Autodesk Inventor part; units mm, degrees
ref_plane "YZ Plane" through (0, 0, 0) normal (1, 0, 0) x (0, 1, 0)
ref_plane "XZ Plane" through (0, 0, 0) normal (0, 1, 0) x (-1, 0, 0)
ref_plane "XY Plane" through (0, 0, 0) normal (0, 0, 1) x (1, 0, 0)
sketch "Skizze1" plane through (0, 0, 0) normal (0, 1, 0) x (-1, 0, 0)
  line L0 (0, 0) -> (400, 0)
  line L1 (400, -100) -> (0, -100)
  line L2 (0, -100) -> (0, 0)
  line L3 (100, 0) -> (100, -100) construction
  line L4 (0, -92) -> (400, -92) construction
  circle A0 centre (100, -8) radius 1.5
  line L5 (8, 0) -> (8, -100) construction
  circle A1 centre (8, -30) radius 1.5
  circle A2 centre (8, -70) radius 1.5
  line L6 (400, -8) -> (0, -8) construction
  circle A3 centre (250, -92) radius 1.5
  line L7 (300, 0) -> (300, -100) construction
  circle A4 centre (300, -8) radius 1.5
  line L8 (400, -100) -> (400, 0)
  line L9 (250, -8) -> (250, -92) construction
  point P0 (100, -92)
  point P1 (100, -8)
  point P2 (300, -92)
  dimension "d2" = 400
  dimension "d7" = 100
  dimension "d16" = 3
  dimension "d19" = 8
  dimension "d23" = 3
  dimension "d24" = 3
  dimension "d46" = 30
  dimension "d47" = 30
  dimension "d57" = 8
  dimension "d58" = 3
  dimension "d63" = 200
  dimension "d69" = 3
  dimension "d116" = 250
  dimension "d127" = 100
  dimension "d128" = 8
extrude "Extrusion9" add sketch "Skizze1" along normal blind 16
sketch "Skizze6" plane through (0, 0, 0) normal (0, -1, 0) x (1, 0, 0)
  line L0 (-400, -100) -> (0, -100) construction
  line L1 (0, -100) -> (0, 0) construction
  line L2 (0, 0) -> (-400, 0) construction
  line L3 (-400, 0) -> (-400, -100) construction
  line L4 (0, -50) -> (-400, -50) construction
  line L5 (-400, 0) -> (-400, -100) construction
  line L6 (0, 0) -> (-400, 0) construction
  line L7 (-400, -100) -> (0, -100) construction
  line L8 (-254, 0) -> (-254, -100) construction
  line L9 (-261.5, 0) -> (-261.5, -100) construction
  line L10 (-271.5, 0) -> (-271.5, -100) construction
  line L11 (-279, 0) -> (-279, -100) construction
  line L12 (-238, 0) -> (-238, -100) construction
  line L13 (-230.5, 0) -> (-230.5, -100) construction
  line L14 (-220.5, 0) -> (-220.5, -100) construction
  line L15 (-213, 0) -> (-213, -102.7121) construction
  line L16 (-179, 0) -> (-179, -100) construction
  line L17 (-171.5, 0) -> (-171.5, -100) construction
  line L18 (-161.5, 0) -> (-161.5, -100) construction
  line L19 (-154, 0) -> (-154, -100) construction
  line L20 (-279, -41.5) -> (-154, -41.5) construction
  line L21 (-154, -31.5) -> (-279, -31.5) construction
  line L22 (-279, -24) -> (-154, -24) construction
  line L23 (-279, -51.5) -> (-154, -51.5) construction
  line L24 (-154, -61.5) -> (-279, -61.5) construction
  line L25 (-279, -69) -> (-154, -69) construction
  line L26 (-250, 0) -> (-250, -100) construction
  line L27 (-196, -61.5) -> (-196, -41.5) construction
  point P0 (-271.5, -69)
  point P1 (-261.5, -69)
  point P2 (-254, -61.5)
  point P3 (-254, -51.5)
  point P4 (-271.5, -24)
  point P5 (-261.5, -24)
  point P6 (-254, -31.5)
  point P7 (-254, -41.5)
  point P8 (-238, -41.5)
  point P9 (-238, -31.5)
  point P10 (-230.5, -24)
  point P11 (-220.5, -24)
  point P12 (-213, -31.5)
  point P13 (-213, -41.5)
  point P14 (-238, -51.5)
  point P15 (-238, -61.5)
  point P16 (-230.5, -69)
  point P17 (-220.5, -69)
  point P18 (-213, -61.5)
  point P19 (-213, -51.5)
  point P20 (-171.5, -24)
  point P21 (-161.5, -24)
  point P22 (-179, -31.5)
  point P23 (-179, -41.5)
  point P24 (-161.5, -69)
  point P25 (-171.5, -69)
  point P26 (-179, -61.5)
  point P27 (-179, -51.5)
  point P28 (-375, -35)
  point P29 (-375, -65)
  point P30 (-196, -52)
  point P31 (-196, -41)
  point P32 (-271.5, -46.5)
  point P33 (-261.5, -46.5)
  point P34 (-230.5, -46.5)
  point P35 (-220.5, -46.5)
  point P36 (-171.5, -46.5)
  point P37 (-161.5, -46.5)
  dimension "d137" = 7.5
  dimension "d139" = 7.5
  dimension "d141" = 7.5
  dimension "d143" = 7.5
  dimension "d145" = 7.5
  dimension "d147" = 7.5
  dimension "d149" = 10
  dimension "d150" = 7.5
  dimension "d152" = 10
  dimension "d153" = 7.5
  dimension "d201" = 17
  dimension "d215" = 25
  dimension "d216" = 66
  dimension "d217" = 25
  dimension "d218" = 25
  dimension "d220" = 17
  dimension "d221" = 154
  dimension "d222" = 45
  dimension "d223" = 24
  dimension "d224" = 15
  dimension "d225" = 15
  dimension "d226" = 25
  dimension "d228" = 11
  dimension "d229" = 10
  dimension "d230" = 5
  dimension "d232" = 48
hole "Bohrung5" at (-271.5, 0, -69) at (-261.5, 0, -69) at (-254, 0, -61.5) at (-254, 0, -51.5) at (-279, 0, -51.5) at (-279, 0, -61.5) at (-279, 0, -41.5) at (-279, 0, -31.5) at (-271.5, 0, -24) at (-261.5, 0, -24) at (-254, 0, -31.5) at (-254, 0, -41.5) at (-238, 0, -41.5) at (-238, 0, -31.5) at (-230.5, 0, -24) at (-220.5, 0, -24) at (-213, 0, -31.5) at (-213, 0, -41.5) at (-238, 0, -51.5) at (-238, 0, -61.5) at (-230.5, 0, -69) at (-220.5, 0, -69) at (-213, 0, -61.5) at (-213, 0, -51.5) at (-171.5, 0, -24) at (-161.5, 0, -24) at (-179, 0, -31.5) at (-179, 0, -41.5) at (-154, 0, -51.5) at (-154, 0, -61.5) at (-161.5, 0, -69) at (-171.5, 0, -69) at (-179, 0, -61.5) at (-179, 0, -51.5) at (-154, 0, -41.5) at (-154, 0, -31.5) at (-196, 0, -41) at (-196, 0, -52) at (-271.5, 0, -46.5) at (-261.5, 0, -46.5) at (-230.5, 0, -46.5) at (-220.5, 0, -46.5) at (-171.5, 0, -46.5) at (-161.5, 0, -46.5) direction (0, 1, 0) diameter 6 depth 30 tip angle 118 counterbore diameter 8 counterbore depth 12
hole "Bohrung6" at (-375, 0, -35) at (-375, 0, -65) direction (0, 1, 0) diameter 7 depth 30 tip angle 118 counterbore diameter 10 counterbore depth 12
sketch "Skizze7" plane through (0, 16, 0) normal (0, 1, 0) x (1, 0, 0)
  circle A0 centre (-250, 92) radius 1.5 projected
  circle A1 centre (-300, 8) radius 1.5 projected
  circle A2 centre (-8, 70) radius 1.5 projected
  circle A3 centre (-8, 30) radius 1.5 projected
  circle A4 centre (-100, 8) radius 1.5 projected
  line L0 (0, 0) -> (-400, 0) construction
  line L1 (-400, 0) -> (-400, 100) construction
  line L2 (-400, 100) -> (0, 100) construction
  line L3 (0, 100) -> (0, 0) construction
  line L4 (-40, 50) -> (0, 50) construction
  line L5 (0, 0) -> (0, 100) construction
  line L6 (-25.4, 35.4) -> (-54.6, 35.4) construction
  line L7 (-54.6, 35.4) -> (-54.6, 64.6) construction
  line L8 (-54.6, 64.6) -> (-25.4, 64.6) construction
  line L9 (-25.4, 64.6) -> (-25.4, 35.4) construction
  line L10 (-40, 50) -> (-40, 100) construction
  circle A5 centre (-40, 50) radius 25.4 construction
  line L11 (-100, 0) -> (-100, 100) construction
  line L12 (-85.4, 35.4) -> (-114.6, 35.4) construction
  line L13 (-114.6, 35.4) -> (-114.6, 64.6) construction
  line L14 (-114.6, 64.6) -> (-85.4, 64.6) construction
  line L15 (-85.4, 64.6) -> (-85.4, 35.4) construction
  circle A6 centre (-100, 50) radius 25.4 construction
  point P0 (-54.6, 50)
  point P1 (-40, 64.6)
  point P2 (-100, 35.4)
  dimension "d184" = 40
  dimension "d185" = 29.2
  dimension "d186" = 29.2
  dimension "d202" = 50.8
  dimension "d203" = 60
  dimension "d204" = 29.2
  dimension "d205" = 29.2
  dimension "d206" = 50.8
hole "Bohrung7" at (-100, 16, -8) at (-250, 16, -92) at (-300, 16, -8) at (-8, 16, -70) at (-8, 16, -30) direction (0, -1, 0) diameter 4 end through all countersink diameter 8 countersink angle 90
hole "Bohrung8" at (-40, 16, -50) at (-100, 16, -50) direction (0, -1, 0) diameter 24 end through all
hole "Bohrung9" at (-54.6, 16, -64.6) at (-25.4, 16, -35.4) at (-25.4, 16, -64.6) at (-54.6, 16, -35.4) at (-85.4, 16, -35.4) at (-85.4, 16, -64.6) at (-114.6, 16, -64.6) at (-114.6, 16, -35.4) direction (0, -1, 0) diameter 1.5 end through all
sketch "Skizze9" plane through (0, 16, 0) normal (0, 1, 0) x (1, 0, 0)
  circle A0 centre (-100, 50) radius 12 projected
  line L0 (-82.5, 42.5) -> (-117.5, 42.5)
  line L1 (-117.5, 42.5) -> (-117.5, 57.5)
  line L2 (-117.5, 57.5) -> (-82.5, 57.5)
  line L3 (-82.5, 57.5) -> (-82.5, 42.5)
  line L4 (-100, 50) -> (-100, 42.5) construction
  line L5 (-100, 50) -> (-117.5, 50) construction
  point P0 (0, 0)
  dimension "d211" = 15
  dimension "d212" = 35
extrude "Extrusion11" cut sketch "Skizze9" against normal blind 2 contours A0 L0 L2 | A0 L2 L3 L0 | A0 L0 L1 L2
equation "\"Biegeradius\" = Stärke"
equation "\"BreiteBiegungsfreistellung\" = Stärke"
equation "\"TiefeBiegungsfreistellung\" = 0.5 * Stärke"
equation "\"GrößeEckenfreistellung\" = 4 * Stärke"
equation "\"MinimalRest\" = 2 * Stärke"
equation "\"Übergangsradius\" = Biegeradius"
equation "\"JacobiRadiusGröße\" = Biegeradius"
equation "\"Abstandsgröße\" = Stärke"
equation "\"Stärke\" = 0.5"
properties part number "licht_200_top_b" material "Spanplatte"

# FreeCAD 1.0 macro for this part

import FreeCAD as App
import Part
import Sketcher

V = App.Vector
Q = App.Units.Quantity


def add_polygon(sketch, points):
    """Adds a closed chain of lines whose ends are joined by coincident constraints."""
    first, n = sketch.GeometryCount, len(points)
    for a, b in zip(points, points[1:] + points[:1]):
        sketch.addGeometry(Part.LineSegment(App.Vector(*a, 0), App.Vector(*b, 0)), False)
    for i in range(n):
        sketch.addConstraint(Sketcher.Constraint("Coincident", first + i, 2, first + (i + 1) % n, 1))

doc = App.newDocument("Part")
body = doc.addObject("PartDesign::Body", "Body")

sketch1 = doc.addObject("Sketcher::SketchObject", "Sketch")
body.addObject(sketch1)
sketch1.AttachmentSupport = (doc.XZ_Plane, [""])
sketch1.MapMode = "FlatFace"
add_polygon(sketch1, [(-400, 0), (0, 0), (0, -100), (-400, -100)])
sketch1.addGeometry(Part.Circle(V(-8, -70, 0), V(0, 0, 1), 1.5), False)
sketch1.addGeometry(Part.Circle(V(-250, -92, 0), V(0, 0, 1), 1.5), False)
sketch1.addGeometry(Part.Circle(V(-8, -30, 0), V(0, 0, 1), 1.5), False)
sketch1.addGeometry(Part.Circle(V(-100, -8, 0), V(0, 0, 1), 1.5), False)
sketch1.addGeometry(Part.Circle(V(-300, -8, 0), V(0, 0, 1), 1.5), False)
sketch1.addConstraint([
    Sketcher.Constraint("Horizontal", 0),
    Sketcher.Constraint("Vertical", 1),
    Sketcher.Constraint("Horizontal", 2),
    Sketcher.Constraint("Vertical", 3),
    Sketcher.Constraint("Coincident", 0, 2, -1, 1),
    Sketcher.Constraint("Equal", 4, 5),
    Sketcher.Constraint("Equal", 5, 6),
    Sketcher.Constraint("Equal", 6, 7),
    Sketcher.Constraint("Equal", 7, 8),
    Sketcher.Constraint("Horizontal", 7, 3, 8, 3),
    Sketcher.Constraint("Vertical", 4, 3, 6, 3),
    Sketcher.Constraint("Diameter", 4, Q("3 mm")),
    Sketcher.Constraint("DistanceX", 0, 1, 0, 2, Q("400 mm")),
    Sketcher.Constraint("DistanceY", 1, 2, 1, 1, Q("100 mm")),
    Sketcher.Constraint("DistanceX", 4, 3, -1, 1, Q("8 mm")),
    Sketcher.Constraint("DistanceX", 5, 3, -1, 1, Q("250 mm")),
    Sketcher.Constraint("DistanceY", 6, 3, -1, 1, Q("30 mm")),
    Sketcher.Constraint("DistanceX", 7, 3, -1, 1, Q("100 mm")),
    Sketcher.Constraint("DistanceY", 7, 3, -1, 1, Q("8 mm")),
    Sketcher.Constraint("DistanceX", 8, 3, 7, 3, Q("200 mm")),
    Sketcher.Constraint("DistanceY", 1, 2, 4, 3, Q("30 mm")),
    Sketcher.Constraint("DistanceY", 1, 2, 5, 3, Q("8 mm")),
])
pad1 = doc.addObject("PartDesign::Pad", "Pad")
body.addObject(pad1)
pad1.Profile = sketch1
pad1.Length = 16
pad1.Reversed = True

sketch2 = doc.addObject("Sketcher::SketchObject", "Sketch001")
body.addObject(sketch2)
sketch2.AttachmentSupport = (doc.XZ_Plane, [""])
sketch2.MapMode = "FlatFace"
sketch2.addGeometry([
    Part.Circle(V(-271.5, -69, 0), V(0, 0, 1), 3),
    Part.Circle(V(-261.5, -69, 0), V(0, 0, 1), 3),
    Part.Circle(V(-254, -61.5, 0), V(0, 0, 1), 3),
    Part.Circle(V(-254, -51.5, 0), V(0, 0, 1), 3),
    Part.Circle(V(-279, -51.5, 0), V(0, 0, 1), 3),
    Part.Circle(V(-279, -61.5, 0), V(0, 0, 1), 3),
    Part.Circle(V(-279, -41.5, 0), V(0, 0, 1), 3),
    Part.Circle(V(-279, -31.5, 0), V(0, 0, 1), 3),
    Part.Circle(V(-271.5, -24, 0), V(0, 0, 1), 3),
    Part.Circle(V(-261.5, -24, 0), V(0, 0, 1), 3),
    Part.Circle(V(-254, -31.5, 0), V(0, 0, 1), 3),
    Part.Circle(V(-254, -41.5, 0), V(0, 0, 1), 3),
    Part.Circle(V(-238, -41.5, 0), V(0, 0, 1), 3),
    Part.Circle(V(-238, -31.5, 0), V(0, 0, 1), 3),
    Part.Circle(V(-230.5, -24, 0), V(0, 0, 1), 3),
    Part.Circle(V(-220.5, -24, 0), V(0, 0, 1), 3),
    Part.Circle(V(-213, -31.5, 0), V(0, 0, 1), 3),
    Part.Circle(V(-213, -41.5, 0), V(0, 0, 1), 3),
    Part.Circle(V(-238, -51.5, 0), V(0, 0, 1), 3),
    Part.Circle(V(-238, -61.5, 0), V(0, 0, 1), 3),
    Part.Circle(V(-230.5, -69, 0), V(0, 0, 1), 3),
    Part.Circle(V(-220.5, -69, 0), V(0, 0, 1), 3),
    Part.Circle(V(-213, -61.5, 0), V(0, 0, 1), 3),
    Part.Circle(V(-213, -51.5, 0), V(0, 0, 1), 3),
    Part.Circle(V(-171.5, -24, 0), V(0, 0, 1), 3),
    Part.Circle(V(-161.5, -24, 0), V(0, 0, 1), 3),
    Part.Circle(V(-179, -31.5, 0), V(0, 0, 1), 3),
    Part.Circle(V(-179, -41.5, 0), V(0, 0, 1), 3),
    Part.Circle(V(-154, -51.5, 0), V(0, 0, 1), 3),
    Part.Circle(V(-154, -61.5, 0), V(0, 0, 1), 3),
    Part.Circle(V(-161.5, -69, 0), V(0, 0, 1), 3),
    Part.Circle(V(-171.5, -69, 0), V(0, 0, 1), 3),
    Part.Circle(V(-179, -61.5, 0), V(0, 0, 1), 3),
    Part.Circle(V(-179, -51.5, 0), V(0, 0, 1), 3),
    Part.Circle(V(-154, -41.5, 0), V(0, 0, 1), 3),
    Part.Circle(V(-154, -31.5, 0), V(0, 0, 1), 3),
    Part.Circle(V(-196, -41, 0), V(0, 0, 1), 3),
    Part.Circle(V(-196, -52, 0), V(0, 0, 1), 3),
    Part.Circle(V(-271.5, -46.5, 0), V(0, 0, 1), 3),
    Part.Circle(V(-261.5, -46.5, 0), V(0, 0, 1), 3),
    Part.Circle(V(-230.5, -46.5, 0), V(0, 0, 1), 3),
    Part.Circle(V(-220.5, -46.5, 0), V(0, 0, 1), 3),
    Part.Circle(V(-171.5, -46.5, 0), V(0, 0, 1), 3),
    Part.Circle(V(-161.5, -46.5, 0), V(0, 0, 1), 3),
], False)
sketch2.addConstraint([
    Sketcher.Constraint("Equal", 0, 1),
    Sketcher.Constraint("Equal", 1, 2),
    Sketcher.Constraint("Equal", 2, 3),
    Sketcher.Constraint("Equal", 3, 4),
    Sketcher.Constraint("Equal", 4, 5),
    Sketcher.Constraint("Equal", 5, 6),
    Sketcher.Constraint("Equal", 6, 7),
    Sketcher.Constraint("Equal", 7, 8),
    Sketcher.Constraint("Equal", 8, 9),
    Sketcher.Constraint("Equal", 9, 10),
    Sketcher.Constraint("Equal", 10, 11),
    Sketcher.Constraint("Equal", 11, 12),
    Sketcher.Constraint("Equal", 12, 13),
    Sketcher.Constraint("Equal", 13, 14),
    Sketcher.Constraint("Equal", 14, 15),
    Sketcher.Constraint("Equal", 15, 16),
    Sketcher.Constraint("Equal", 16, 17),
    Sketcher.Constraint("Equal", 17, 18),
    Sketcher.Constraint("Equal", 18, 19),
    Sketcher.Constraint("Equal", 19, 20),
    Sketcher.Constraint("Equal", 20, 21),
    Sketcher.Constraint("Equal", 21, 22),
    Sketcher.Constraint("Equal", 22, 23),
    Sketcher.Constraint("Equal", 23, 24),
    Sketcher.Constraint("Equal", 24, 25),
    Sketcher.Constraint("Equal", 25, 26),
    Sketcher.Constraint("Equal", 26, 27),
    Sketcher.Constraint("Equal", 27, 28),
    Sketcher.Constraint("Equal", 28, 29),
    Sketcher.Constraint("Equal", 29, 30),
    Sketcher.Constraint("Equal", 30, 31),
    Sketcher.Constraint("Equal", 31, 32),
    Sketcher.Constraint("Equal", 32, 33),
    Sketcher.Constraint("Equal", 33, 34),
    Sketcher.Constraint("Equal", 34, 35),
    Sketcher.Constraint("Equal", 35, 36),
    Sketcher.Constraint("Equal", 36, 37),
    Sketcher.Constraint("Equal", 37, 38),
    Sketcher.Constraint("Equal", 38, 39),
    Sketcher.Constraint("Equal", 39, 40),
    Sketcher.Constraint("Equal", 40, 41),
    Sketcher.Constraint("Equal", 41, 42),
    Sketcher.Constraint("Equal", 42, 43),
    Sketcher.Constraint("Horizontal", 0, 3, 1, 3),
    Sketcher.Constraint("Horizontal", 3, 3, 4, 3),
    Sketcher.Constraint("Horizontal", 2, 3, 5, 3),
    Sketcher.Constraint("Horizontal", 8, 3, 9, 3),
    Sketcher.Constraint("Horizontal", 7, 3, 10, 3),
    Sketcher.Constraint("Horizontal", 6, 3, 11, 3),
    Sketcher.Constraint("Horizontal", 11, 3, 12, 3),
    Sketcher.Constraint("Horizontal", 10, 3, 13, 3),
    Sketcher.Constraint("Horizontal", 9, 3, 14, 3),
    Sketcher.Constraint("Horizontal", 14, 3, 15, 3),
    Sketcher.Constraint("Horizontal", 13, 3, 16, 3),
    Sketcher.Constraint("Horizontal", 12, 3, 17, 3),
    Sketcher.Constraint("Horizontal", 4, 3, 18, 3),
    Sketcher.Constraint("Horizontal", 5, 3, 19, 3),
    Sketcher.Constraint("Horizontal", 1, 3, 20, 3),
    Sketcher.Constraint("Horizontal", 20, 3, 21, 3),
    Sketcher.Constraint("Horizontal", 19, 3, 22, 3),
    Sketcher.Constraint("Horizontal", 18, 3, 23, 3),
    Sketcher.Constraint("Horizontal", 15, 3, 24, 3),
    Sketcher.Constraint("Horizontal", 24, 3, 25, 3),
    Sketcher.Constraint("Horizontal", 16, 3, 26, 3),
    Sketcher.Constraint("Horizontal", 17, 3, 27, 3),
    Sketcher.Constraint("Horizontal", 23, 3, 28, 3),
    Sketcher.Constraint("Horizontal", 22, 3, 29, 3),
    Sketcher.Constraint("Horizontal", 21, 3, 30, 3),
    Sketcher.Constraint("Horizontal", 30, 3, 31, 3),
    Sketcher.Constraint("Horizontal", 29, 3, 32, 3),
    Sketcher.Constraint("Horizontal", 28, 3, 33, 3),
    Sketcher.Constraint("Horizontal", 27, 3, 34, 3),
    Sketcher.Constraint("Horizontal", 26, 3, 35, 3),
    Sketcher.Constraint("Horizontal", 38, 3, 39, 3),
    Sketcher.Constraint("Horizontal", 39, 3, 40, 3),
    Sketcher.Constraint("Horizontal", 40, 3, 41, 3),
    Sketcher.Constraint("Horizontal", 41, 3, 42, 3),
    Sketcher.Constraint("Horizontal", 42, 3, 43, 3),
    Sketcher.Constraint("Vertical", 2, 3, 3, 3),
    Sketcher.Constraint("Vertical", 4, 3, 5, 3),
    Sketcher.Constraint("Vertical", 5, 3, 6, 3),
    Sketcher.Constraint("Vertical", 6, 3, 7, 3),
    Sketcher.Constraint("Vertical", 0, 3, 8, 3),
    Sketcher.Constraint("Vertical", 1, 3, 9, 3),
    Sketcher.Constraint("Vertical", 3, 3, 10, 3),
    Sketcher.Constraint("Vertical", 10, 3, 11, 3),
    Sketcher.Constraint("Vertical", 12, 3, 13, 3),
    Sketcher.Constraint("Vertical", 16, 3, 17, 3),
    Sketcher.Constraint("Vertical", 13, 3, 18, 3),
    Sketcher.Constraint("Vertical", 18, 3, 19, 3),
    Sketcher.Constraint("Vertical", 14, 3, 20, 3),
    Sketcher.Constraint("Vertical", 15, 3, 21, 3),
    Sketcher.Constraint("Vertical", 17, 3, 22, 3),
    Sketcher.Constraint("Vertical", 22, 3, 23, 3),
    Sketcher.Constraint("Vertical", 26, 3, 27, 3),
    Sketcher.Constraint("Vertical", 28, 3, 29, 3),
    Sketcher.Constraint("Vertical", 25, 3, 30, 3),
    Sketcher.Constraint("Vertical", 24, 3, 31, 3),
    Sketcher.Constraint("Vertical", 27, 3, 32, 3),
    Sketcher.Constraint("Vertical", 32, 3, 33, 3),
    Sketcher.Constraint("Vertical", 29, 3, 34, 3),
    Sketcher.Constraint("Vertical", 34, 3, 35, 3),
    Sketcher.Constraint("Vertical", 36, 3, 37, 3),
    Sketcher.Constraint("Vertical", 8, 3, 38, 3),
    Sketcher.Constraint("Vertical", 9, 3, 39, 3),
    Sketcher.Constraint("Vertical", 20, 3, 40, 3),
    Sketcher.Constraint("Vertical", 21, 3, 41, 3),
    Sketcher.Constraint("Vertical", 31, 3, 42, 3),
    Sketcher.Constraint("Vertical", 30, 3, 43, 3),
    Sketcher.Constraint("Diameter", 0, Q("6 mm")),
    Sketcher.Constraint("DistanceY", 0, 3, -1, 1, Q("69 mm")),
    Sketcher.Constraint("DistanceX", 2, 3, -1, 1, Q("254 mm")),
    Sketcher.Constraint("DistanceX", 4, 3, -1, 1, Q("279 mm")),
    Sketcher.Constraint("DistanceY", 8, 3, -1, 1, Q("24 mm")),
    Sketcher.Constraint("DistanceX", 12, 3, -1, 1, Q("238 mm")),
    Sketcher.Constraint("DistanceX", 16, 3, -1, 1, Q("213 mm")),
    Sketcher.Constraint("DistanceX", 26, 3, -1, 1, Q("179 mm")),
    Sketcher.Constraint("DistanceX", 28, 3, -1, 1, Q("154 mm")),
    Sketcher.Constraint("DistanceX", 36, 3, -1, 1, Q("196 mm")),
    Sketcher.Constraint("DistanceY", 36, 3, -1, 1, Q("41 mm")),
    Sketcher.Constraint("DistanceY", 37, 3, -1, 1, Q("52 mm")),
    Sketcher.Constraint("DistanceX", 0, 3, 1, 3, Q("10 mm")),
    Sketcher.Constraint("DistanceY", 2, 3, 3, 3, Q("10 mm")),
    Sketcher.Constraint("DistanceY", 4, 3, 6, 3, Q("10 mm")),
    Sketcher.Constraint("DistanceY", 6, 3, 7, 3, Q("10 mm")),
    Sketcher.Constraint("DistanceX", 9, 3, 14, 3, Q("31 mm")),
    Sketcher.Constraint("DistanceX", 14, 3, 15, 3, Q("10 mm")),
    Sketcher.Constraint("DistanceX", 15, 3, 24, 3, Q("49 mm")),
    Sketcher.Constraint("DistanceX", 24, 3, 25, 3, Q("10 mm")),
    Sketcher.Constraint("DistanceY", 4, 3, 38, 3, Q("5 mm")),
    Sketcher.Constraint("DistanceX", 0, 3, -1, 1, Q("271.5 mm")),
    Sketcher.Constraint("DistanceY", 2, 3, -1, 1, Q("61.5 mm")),
])
doc.recompute()
hole = doc.addObject("PartDesign::Hole", "Hole")
body.addObject(hole)
hole.Profile = sketch2
hole.ThreadType = "None"
hole.Diameter = 6
hole.DepthType = "Dimension"
hole.Depth = 30
hole.DrillPoint = "Angled"
hole.DrillPointAngle = 118
hole.HoleCutType = "Counterbore"
hole.HoleCutDiameter = 8
hole.HoleCutDepth = 12

sketch3 = doc.addObject("Sketcher::SketchObject", "Sketch002")
body.addObject(sketch3)
sketch3.AttachmentSupport = (doc.XZ_Plane, [""])
sketch3.MapMode = "FlatFace"
sketch3.addGeometry([
    Part.Circle(V(-375, -35, 0), V(0, 0, 1), 3.5),
    Part.Circle(V(-375, -65, 0), V(0, 0, 1), 3.5),
], False)
sketch3.addConstraint([
    Sketcher.Constraint("Equal", 0, 1),
    Sketcher.Constraint("Vertical", 0, 3, 1, 3),
    Sketcher.Constraint("Diameter", 0, Q("7 mm")),
    Sketcher.Constraint("DistanceX", 0, 3, -1, 1, Q("375 mm")),
    Sketcher.Constraint("DistanceY", 0, 3, -1, 1, Q("35 mm")),
    Sketcher.Constraint("DistanceY", 1, 3, -1, 1, Q("65 mm")),
])
doc.recompute()
hole2 = doc.addObject("PartDesign::Hole", "Hole001")
body.addObject(hole2)
hole2.Profile = sketch3
hole2.ThreadType = "None"
hole2.Diameter = 7
hole2.DepthType = "Dimension"
hole2.Depth = 30
hole2.DrillPoint = "Angled"
hole2.DrillPointAngle = 118
hole2.HoleCutType = "Counterbore"
hole2.HoleCutDiameter = 10
hole2.HoleCutDepth = 12

sketch4 = doc.addObject("Sketcher::SketchObject", "Sketch003")
body.addObject(sketch4)
sketch4.AttachmentSupport = (doc.XZ_Plane, [""])
sketch4.MapMode = "FlatFace"
sketch4.AttachmentOffset = App.Placement(V(0, 0, -16), App.Rotation())
sketch4.addGeometry([
    Part.Circle(V(-100, -8, 0), V(0, 0, 1), 2),
    Part.Circle(V(-250, -92, 0), V(0, 0, 1), 2),
    Part.Circle(V(-300, -8, 0), V(0, 0, 1), 2),
    Part.Circle(V(-8, -70, 0), V(0, 0, 1), 2),
    Part.Circle(V(-8, -30, 0), V(0, 0, 1), 2),
], False)
sketch4.addConstraint([
    Sketcher.Constraint("Equal", 0, 1),
    Sketcher.Constraint("Equal", 1, 2),
    Sketcher.Constraint("Equal", 2, 3),
    Sketcher.Constraint("Equal", 3, 4),
    Sketcher.Constraint("Horizontal", 0, 3, 2, 3),
    Sketcher.Constraint("Vertical", 3, 3, 4, 3),
    Sketcher.Constraint("Diameter", 0, Q("4 mm")),
    Sketcher.Constraint("DistanceX", 0, 3, -1, 1, Q("100 mm")),
    Sketcher.Constraint("DistanceY", 0, 3, -1, 1, Q("8 mm")),
    Sketcher.Constraint("DistanceX", 1, 3, -1, 1, Q("250 mm")),
    Sketcher.Constraint("DistanceY", 1, 3, -1, 1, Q("92 mm")),
    Sketcher.Constraint("DistanceX", 2, 3, -1, 1, Q("300 mm")),
    Sketcher.Constraint("DistanceX", 3, 3, -1, 1, Q("8 mm")),
    Sketcher.Constraint("DistanceY", 3, 3, -1, 1, Q("70 mm")),
    Sketcher.Constraint("DistanceY", 4, 3, -1, 1, Q("30 mm")),
])
doc.recompute()
hole3 = doc.addObject("PartDesign::Hole", "Hole002")
body.addObject(hole3)
hole3.Profile = sketch4
hole3.ThreadType = "None"
hole3.Diameter = 4
hole3.DepthType = "ThroughAll"
hole3.HoleCutType = "Countersink"
hole3.HoleCutDiameter = 8
hole3.HoleCutCountersinkAngle = 90
hole3.Reversed = True

sketch5 = doc.addObject("Sketcher::SketchObject", "Sketch004")
body.addObject(sketch5)
sketch5.AttachmentSupport = (doc.XZ_Plane, [""])
sketch5.MapMode = "FlatFace"
sketch5.AttachmentOffset = App.Placement(V(0, 0, -16), App.Rotation())
sketch5.addGeometry([
    Part.Circle(V(-40, -50, 0), V(0, 0, 1), 12),
    Part.Circle(V(-100, -50, 0), V(0, 0, 1), 12),
], False)
sketch5.addConstraint([
    Sketcher.Constraint("Equal", 0, 1),
    Sketcher.Constraint("Horizontal", 0, 3, 1, 3),
    Sketcher.Constraint("Diameter", 0, Q("24 mm")),
    Sketcher.Constraint("DistanceX", 0, 3, -1, 1, Q("40 mm")),
    Sketcher.Constraint("DistanceY", 0, 3, -1, 1, Q("50 mm")),
    Sketcher.Constraint("DistanceX", 1, 3, -1, 1, Q("100 mm")),
])
doc.recompute()
hole4 = doc.addObject("PartDesign::Hole", "Hole003")
body.addObject(hole4)
hole4.Profile = sketch5
hole4.ThreadType = "None"
hole4.Diameter = 24
hole4.DepthType = "ThroughAll"
hole4.Reversed = True

sketch6 = doc.addObject("Sketcher::SketchObject", "Sketch005")
body.addObject(sketch6)
sketch6.AttachmentSupport = (doc.XZ_Plane, [""])
sketch6.MapMode = "FlatFace"
sketch6.AttachmentOffset = App.Placement(V(0, 0, -16), App.Rotation())
sketch6.addGeometry([
    Part.Circle(V(-54.6, -64.6, 0), V(0, 0, 1), 0.75),
    Part.Circle(V(-25.4, -35.4, 0), V(0, 0, 1), 0.75),
    Part.Circle(V(-25.4, -64.6, 0), V(0, 0, 1), 0.75),
    Part.Circle(V(-54.6, -35.4, 0), V(0, 0, 1), 0.75),
    Part.Circle(V(-85.4, -35.4, 0), V(0, 0, 1), 0.75),
    Part.Circle(V(-85.4, -64.6, 0), V(0, 0, 1), 0.75),
    Part.Circle(V(-114.6, -64.6, 0), V(0, 0, 1), 0.75),
    Part.Circle(V(-114.6, -35.4, 0), V(0, 0, 1), 0.75),
], False)
sketch6.addConstraint([
    Sketcher.Constraint("Equal", 0, 1),
    Sketcher.Constraint("Equal", 1, 2),
    Sketcher.Constraint("Equal", 2, 3),
    Sketcher.Constraint("Equal", 3, 4),
    Sketcher.Constraint("Equal", 4, 5),
    Sketcher.Constraint("Equal", 5, 6),
    Sketcher.Constraint("Equal", 6, 7),
    Sketcher.Constraint("Horizontal", 0, 3, 2, 3),
    Sketcher.Constraint("Horizontal", 1, 3, 3, 3),
    Sketcher.Constraint("Horizontal", 3, 3, 4, 3),
    Sketcher.Constraint("Horizontal", 2, 3, 5, 3),
    Sketcher.Constraint("Horizontal", 5, 3, 6, 3),
    Sketcher.Constraint("Horizontal", 4, 3, 7, 3),
    Sketcher.Constraint("Vertical", 1, 3, 2, 3),
    Sketcher.Constraint("Vertical", 0, 3, 3, 3),
    Sketcher.Constraint("Vertical", 4, 3, 5, 3),
    Sketcher.Constraint("Vertical", 6, 3, 7, 3),
    Sketcher.Constraint("Diameter", 0, Q("1.5 mm")),
    Sketcher.Constraint("DistanceX", 4, 3, 1, 3, Q("60 mm")),
    Sketcher.Constraint("DistanceX", 6, 3, 0, 3, Q("60 mm")),
    Sketcher.Constraint("DistanceX", 0, 3, -1, 1, Q("54.6 mm")),
    Sketcher.Constraint("DistanceY", 0, 3, -1, 1, Q("64.6 mm")),
    Sketcher.Constraint("DistanceX", 1, 3, -1, 1, Q("25.4 mm")),
    Sketcher.Constraint("DistanceY", 1, 3, -1, 1, Q("35.4 mm")),
])
doc.recompute()
hole5 = doc.addObject("PartDesign::Hole", "Hole004")
body.addObject(hole5)
hole5.Profile = sketch6
hole5.ThreadType = "None"
hole5.Diameter = 1.5
hole5.DepthType = "ThroughAll"
hole5.Reversed = True

sketch7 = doc.addObject("Sketcher::SketchObject", "Sketch006")
body.addObject(sketch7)
sketch7.AttachmentSupport = (doc.XZ_Plane, [""])
sketch7.MapMode = "FlatFace"
sketch7.AttachmentOffset = App.Placement(V(0, 0, -16), App.Rotation())
add_polygon(sketch7, [(-82.5, -42.5), (-82.5, -57.5), (-117.5, -57.5), (-117.5, -42.5)])
sketch7.addConstraint([
    Sketcher.Constraint("Vertical", 0),
    Sketcher.Constraint("Horizontal", 1),
    Sketcher.Constraint("Vertical", 2),
    Sketcher.Constraint("Horizontal", 3),
    Sketcher.Constraint("DistanceX", 1, 2, 1, 1, Q("35 mm")),
    Sketcher.Constraint("DistanceY", 0, 2, 0, 1, Q("15 mm")),
    Sketcher.Constraint("DistanceX", 0, 2, -1, 1, Q("82.5 mm")),
    Sketcher.Constraint("DistanceY", 0, 2, -1, 1, Q("57.5 mm")),
])
pocket1 = doc.addObject("PartDesign::Pocket", "Pocket")
body.addObject(pocket1)
pocket1.Profile = sketch7
pocket1.Length = 2
pocket1.Reversed = True

doc.recompute()
